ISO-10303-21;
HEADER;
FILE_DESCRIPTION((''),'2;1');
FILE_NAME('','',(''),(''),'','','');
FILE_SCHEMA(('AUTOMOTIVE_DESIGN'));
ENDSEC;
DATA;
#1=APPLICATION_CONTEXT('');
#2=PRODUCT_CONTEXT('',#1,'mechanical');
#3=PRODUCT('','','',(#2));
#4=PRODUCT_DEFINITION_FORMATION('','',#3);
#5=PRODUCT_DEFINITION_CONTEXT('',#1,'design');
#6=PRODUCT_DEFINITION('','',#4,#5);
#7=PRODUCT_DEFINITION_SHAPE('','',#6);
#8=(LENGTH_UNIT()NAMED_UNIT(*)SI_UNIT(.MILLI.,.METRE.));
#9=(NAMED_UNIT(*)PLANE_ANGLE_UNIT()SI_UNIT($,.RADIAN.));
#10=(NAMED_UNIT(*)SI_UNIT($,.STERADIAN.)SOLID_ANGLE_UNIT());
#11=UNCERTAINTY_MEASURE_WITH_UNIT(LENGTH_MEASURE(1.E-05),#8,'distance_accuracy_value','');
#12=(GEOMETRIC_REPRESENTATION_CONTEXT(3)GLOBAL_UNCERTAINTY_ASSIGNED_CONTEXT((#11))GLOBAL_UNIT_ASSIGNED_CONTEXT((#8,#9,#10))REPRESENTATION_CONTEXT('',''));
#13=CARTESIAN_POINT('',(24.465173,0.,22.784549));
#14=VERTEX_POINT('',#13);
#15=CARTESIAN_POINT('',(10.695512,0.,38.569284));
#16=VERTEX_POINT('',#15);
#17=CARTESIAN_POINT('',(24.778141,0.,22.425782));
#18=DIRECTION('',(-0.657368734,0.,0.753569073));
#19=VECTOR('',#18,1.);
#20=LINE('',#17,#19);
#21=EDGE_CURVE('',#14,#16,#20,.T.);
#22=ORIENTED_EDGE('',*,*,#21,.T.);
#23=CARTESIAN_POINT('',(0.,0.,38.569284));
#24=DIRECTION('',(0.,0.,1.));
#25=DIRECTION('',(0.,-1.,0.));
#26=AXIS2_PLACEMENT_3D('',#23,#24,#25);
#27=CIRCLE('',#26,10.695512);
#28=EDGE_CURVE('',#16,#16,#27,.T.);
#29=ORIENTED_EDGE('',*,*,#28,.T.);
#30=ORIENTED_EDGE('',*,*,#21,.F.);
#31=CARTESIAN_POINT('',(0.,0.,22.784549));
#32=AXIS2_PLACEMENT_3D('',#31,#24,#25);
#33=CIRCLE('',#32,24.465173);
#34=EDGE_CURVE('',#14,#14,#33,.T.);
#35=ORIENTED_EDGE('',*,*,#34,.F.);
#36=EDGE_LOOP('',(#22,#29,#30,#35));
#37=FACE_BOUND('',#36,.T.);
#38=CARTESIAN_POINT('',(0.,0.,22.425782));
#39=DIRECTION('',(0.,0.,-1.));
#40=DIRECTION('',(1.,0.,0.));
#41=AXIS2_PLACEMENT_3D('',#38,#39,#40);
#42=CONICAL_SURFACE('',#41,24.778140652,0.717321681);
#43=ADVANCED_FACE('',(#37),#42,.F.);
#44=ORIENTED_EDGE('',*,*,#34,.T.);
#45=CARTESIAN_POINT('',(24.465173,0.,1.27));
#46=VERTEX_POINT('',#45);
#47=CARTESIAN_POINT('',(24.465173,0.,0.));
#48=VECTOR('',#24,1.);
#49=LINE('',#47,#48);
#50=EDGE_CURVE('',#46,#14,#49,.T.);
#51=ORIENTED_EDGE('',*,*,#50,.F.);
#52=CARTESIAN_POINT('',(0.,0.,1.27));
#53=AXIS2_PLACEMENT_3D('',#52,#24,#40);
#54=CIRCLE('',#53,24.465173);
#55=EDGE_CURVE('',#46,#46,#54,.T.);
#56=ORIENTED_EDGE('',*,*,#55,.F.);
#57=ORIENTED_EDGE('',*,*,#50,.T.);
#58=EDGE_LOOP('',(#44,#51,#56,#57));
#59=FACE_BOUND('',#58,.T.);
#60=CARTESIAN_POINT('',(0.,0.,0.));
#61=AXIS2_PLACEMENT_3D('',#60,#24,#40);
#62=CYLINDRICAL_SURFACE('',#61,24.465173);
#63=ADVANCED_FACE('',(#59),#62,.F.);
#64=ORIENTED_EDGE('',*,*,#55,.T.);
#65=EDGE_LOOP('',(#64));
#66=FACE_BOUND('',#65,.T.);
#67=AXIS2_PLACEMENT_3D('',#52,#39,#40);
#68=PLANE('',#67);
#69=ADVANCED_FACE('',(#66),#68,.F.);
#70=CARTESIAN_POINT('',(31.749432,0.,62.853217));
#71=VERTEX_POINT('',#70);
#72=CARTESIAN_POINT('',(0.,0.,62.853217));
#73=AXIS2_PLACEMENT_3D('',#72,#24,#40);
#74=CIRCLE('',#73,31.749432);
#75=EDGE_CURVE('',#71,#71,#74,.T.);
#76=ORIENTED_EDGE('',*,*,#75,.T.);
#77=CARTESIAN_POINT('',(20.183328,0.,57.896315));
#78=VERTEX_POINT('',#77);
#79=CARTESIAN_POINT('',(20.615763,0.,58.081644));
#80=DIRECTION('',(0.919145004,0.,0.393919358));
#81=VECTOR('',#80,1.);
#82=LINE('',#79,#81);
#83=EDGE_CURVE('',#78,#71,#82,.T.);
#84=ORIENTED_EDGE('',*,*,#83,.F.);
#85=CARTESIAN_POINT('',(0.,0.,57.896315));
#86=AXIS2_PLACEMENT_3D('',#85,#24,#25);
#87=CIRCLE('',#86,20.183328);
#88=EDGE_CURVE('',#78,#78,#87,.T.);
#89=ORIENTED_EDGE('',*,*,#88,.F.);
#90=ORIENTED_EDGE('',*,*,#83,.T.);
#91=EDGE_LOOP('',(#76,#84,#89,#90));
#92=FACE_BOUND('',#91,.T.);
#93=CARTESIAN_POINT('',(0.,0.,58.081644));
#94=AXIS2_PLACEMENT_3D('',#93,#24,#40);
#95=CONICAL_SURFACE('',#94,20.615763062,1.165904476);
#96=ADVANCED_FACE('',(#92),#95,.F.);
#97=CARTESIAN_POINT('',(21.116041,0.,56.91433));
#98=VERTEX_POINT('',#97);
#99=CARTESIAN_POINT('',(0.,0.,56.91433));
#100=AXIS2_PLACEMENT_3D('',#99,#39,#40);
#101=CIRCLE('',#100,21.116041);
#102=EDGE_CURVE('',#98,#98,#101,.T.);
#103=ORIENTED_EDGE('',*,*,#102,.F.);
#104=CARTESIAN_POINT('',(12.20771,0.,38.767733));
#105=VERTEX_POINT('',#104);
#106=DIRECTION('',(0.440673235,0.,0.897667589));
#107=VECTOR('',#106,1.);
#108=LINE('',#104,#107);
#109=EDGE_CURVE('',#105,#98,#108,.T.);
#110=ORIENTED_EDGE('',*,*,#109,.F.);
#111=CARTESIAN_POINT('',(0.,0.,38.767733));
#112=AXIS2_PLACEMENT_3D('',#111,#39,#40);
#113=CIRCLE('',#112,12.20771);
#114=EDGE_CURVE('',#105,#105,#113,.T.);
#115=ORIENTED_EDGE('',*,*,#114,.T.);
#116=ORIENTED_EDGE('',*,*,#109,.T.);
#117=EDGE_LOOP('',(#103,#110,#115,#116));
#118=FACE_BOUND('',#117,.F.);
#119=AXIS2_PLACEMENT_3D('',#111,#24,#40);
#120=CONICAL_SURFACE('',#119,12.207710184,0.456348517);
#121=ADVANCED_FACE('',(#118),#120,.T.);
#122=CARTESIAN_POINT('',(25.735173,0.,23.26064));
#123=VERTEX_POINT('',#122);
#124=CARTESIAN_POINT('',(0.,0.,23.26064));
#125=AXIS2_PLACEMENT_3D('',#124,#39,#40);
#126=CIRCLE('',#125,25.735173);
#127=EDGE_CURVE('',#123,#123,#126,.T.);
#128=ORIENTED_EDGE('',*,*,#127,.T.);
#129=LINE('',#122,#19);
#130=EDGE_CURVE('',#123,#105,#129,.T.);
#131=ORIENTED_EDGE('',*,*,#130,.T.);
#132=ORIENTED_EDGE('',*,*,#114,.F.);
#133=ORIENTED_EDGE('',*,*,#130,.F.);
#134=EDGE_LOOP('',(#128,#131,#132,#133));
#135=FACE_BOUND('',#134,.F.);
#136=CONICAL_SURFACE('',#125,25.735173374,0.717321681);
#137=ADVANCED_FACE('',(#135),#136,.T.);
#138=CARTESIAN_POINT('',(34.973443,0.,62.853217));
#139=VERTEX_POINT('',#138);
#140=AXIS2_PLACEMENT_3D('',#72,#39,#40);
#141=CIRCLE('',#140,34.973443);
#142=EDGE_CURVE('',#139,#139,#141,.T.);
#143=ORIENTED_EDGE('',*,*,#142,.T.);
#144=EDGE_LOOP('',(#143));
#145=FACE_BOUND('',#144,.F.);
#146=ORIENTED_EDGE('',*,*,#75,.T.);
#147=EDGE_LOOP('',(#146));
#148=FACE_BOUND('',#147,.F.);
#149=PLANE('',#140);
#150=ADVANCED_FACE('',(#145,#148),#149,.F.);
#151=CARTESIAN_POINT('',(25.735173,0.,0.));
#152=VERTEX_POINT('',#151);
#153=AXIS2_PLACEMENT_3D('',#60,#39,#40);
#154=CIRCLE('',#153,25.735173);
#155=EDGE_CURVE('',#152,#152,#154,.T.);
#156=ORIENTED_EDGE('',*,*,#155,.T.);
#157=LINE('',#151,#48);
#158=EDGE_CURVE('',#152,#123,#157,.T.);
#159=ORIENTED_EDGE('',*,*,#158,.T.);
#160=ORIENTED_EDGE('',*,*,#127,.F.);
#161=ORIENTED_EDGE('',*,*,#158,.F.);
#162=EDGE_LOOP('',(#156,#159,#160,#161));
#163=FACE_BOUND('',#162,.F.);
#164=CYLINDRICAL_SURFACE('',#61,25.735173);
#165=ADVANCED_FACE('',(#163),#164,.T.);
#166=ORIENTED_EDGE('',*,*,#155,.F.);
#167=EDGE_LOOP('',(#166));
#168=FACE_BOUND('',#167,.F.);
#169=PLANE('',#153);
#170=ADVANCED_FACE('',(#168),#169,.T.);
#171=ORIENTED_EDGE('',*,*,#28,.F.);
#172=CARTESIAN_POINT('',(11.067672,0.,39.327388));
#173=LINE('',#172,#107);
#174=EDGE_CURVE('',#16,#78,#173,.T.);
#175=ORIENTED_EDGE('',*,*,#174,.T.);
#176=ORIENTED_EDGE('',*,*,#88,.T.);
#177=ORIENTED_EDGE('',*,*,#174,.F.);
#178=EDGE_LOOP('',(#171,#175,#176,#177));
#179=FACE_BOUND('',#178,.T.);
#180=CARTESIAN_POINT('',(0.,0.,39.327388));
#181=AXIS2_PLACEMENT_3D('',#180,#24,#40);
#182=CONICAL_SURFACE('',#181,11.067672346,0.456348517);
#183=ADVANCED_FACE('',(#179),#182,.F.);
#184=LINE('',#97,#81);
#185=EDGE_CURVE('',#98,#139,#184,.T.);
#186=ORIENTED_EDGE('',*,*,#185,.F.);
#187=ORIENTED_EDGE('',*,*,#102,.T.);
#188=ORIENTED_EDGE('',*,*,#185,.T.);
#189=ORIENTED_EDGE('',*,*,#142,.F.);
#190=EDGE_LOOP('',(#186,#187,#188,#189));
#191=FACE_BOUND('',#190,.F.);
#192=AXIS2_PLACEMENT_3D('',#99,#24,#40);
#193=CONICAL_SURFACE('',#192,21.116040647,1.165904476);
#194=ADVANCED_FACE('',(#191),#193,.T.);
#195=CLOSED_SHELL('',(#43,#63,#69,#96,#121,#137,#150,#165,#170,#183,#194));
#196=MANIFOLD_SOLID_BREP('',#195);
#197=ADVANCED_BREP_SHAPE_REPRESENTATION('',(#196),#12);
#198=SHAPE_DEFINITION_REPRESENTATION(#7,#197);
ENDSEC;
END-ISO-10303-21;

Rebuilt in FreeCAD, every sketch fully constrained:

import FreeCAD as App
import Part
import Sketcher
from FreeCAD import Vector


def faces_at(feature, points):
    """Names of the faces that lie closest to the given points."""
    faces = feature.Shape.Faces
    near = lambda p: min(range(len(faces)), key=lambda i: faces[i].distToShape(Part.Vertex(*p))[0])
    return sorted({f"Face{near(p) + 1}" for p in points})

doc = App.newDocument("Part")
params = doc.addObject("Spreadsheet::Sheet", "Params")
for row, (alias, value) in enumerate([
    ("revolution_angle", "360 deg"),
    ("thickness_wall", "0.05 in"),
], start=1):
    params.set(f"A{row}", alias)
    params.set(f"B{row}", "=" + value)
    params.setAlias(f"B{row}", alias)

body = doc.addObject("PartDesign::Body", "Body")

sketch1 = doc.addObject("Sketcher::SketchObject", "Sketch")
body.addObject(sketch1)
sketch1.AttachmentSupport = (doc.XZ_Plane, [""])
sketch1.MapMode = "FlatFace"
sketch1.addGeometry(Part.LineSegment(Vector(0, 63, 0), Vector(0, 0, 0)), False)
sketch1.addGeometry(Part.LineSegment(Vector(0, 0, 0), Vector(26, 0, 0)), False)
sketch1.addGeometry(Part.LineSegment(Vector(26, 0, 0), Vector(26, 23, 0)), False)
sketch1.addGeometry(Part.LineSegment(Vector(26, 23, 0), Vector(12, 39, 0)), False)
sketch1.addGeometry(Part.LineSegment(Vector(12, 39, 0), Vector(21, 57, 0)), False)
sketch1.addGeometry(Part.LineSegment(Vector(21, 57, 0), Vector(35, 63, 0)), False)
sketch1.addGeometry(Part.LineSegment(Vector(35, 63, 0), Vector(0, 63, 0)), False)
sketch1.addConstraint(Sketcher.Constraint("Coincident", 0, 2, 1, 1))
sketch1.addConstraint(Sketcher.Constraint("Coincident", 1, 2, 2, 1))
sketch1.addConstraint(Sketcher.Constraint("Coincident", 2, 2, 3, 1))
sketch1.addConstraint(Sketcher.Constraint("Coincident", 3, 2, 4, 1))
sketch1.addConstraint(Sketcher.Constraint("Coincident", 4, 2, 5, 1))
sketch1.addConstraint(Sketcher.Constraint("Coincident", 5, 2, 6, 1))
sketch1.addConstraint(Sketcher.Constraint("Coincident", 6, 2, 0, 1))
sketch1.addConstraint(Sketcher.Constraint("Vertical", 0))
sketch1.addConstraint(Sketcher.Constraint("Horizontal", 1))
sketch1.addConstraint(Sketcher.Constraint("Vertical", 2))
sketch1.addConstraint(Sketcher.Constraint("Horizontal", 6))
sketch1.addConstraint(Sketcher.Constraint("Coincident", 0, 2, -1, 1))
sketch1.addConstraint(Sketcher.Constraint("DistanceY", 2, 1, 2, 2, 23.26064))
sketch1.addConstraint(Sketcher.Constraint("DistanceX", 4, 2, 5, 2, 13.857402))
sketch1.addConstraint(Sketcher.Constraint("DistanceX", 1, 1, 1, 2, 25.735173))
sketch1.addConstraint(Sketcher.Constraint("DistanceX", 6, 2, 6, 1, 34.973443))
sketch1.addConstraint(Sketcher.Constraint("DistanceY", 0, 2, 0, 1, 62.853217))
sketch1.addConstraint(Sketcher.Constraint("DistanceX", -1, 1, 3, 2, 12.20771))
sketch1.addConstraint(Sketcher.Constraint("DistanceY", -1, 1, 4, 2, 56.91433))
sketch1.addConstraint(Sketcher.Constraint("Distance", 3, 20.578197))
revolution = doc.addObject("PartDesign::Revolution", "Revolution")
body.addObject(revolution)
revolution.Profile = sketch1
revolution.ReferenceAxis = (sketch1, ["V_Axis"])
revolution.setExpression("Angle", "Params.revolution_angle")
doc.recompute()

thickness = doc.addObject("PartDesign::Thickness", "Thickness")
body.addObject(thickness)
thickness.Base = (revolution, faces_at(revolution, [(0, 0, 62.853)]))
thickness.setExpression("Value", "Params.thickness_wall")
thickness.Reversed = True
thickness.Join = "Intersection"

doc.recompute()
